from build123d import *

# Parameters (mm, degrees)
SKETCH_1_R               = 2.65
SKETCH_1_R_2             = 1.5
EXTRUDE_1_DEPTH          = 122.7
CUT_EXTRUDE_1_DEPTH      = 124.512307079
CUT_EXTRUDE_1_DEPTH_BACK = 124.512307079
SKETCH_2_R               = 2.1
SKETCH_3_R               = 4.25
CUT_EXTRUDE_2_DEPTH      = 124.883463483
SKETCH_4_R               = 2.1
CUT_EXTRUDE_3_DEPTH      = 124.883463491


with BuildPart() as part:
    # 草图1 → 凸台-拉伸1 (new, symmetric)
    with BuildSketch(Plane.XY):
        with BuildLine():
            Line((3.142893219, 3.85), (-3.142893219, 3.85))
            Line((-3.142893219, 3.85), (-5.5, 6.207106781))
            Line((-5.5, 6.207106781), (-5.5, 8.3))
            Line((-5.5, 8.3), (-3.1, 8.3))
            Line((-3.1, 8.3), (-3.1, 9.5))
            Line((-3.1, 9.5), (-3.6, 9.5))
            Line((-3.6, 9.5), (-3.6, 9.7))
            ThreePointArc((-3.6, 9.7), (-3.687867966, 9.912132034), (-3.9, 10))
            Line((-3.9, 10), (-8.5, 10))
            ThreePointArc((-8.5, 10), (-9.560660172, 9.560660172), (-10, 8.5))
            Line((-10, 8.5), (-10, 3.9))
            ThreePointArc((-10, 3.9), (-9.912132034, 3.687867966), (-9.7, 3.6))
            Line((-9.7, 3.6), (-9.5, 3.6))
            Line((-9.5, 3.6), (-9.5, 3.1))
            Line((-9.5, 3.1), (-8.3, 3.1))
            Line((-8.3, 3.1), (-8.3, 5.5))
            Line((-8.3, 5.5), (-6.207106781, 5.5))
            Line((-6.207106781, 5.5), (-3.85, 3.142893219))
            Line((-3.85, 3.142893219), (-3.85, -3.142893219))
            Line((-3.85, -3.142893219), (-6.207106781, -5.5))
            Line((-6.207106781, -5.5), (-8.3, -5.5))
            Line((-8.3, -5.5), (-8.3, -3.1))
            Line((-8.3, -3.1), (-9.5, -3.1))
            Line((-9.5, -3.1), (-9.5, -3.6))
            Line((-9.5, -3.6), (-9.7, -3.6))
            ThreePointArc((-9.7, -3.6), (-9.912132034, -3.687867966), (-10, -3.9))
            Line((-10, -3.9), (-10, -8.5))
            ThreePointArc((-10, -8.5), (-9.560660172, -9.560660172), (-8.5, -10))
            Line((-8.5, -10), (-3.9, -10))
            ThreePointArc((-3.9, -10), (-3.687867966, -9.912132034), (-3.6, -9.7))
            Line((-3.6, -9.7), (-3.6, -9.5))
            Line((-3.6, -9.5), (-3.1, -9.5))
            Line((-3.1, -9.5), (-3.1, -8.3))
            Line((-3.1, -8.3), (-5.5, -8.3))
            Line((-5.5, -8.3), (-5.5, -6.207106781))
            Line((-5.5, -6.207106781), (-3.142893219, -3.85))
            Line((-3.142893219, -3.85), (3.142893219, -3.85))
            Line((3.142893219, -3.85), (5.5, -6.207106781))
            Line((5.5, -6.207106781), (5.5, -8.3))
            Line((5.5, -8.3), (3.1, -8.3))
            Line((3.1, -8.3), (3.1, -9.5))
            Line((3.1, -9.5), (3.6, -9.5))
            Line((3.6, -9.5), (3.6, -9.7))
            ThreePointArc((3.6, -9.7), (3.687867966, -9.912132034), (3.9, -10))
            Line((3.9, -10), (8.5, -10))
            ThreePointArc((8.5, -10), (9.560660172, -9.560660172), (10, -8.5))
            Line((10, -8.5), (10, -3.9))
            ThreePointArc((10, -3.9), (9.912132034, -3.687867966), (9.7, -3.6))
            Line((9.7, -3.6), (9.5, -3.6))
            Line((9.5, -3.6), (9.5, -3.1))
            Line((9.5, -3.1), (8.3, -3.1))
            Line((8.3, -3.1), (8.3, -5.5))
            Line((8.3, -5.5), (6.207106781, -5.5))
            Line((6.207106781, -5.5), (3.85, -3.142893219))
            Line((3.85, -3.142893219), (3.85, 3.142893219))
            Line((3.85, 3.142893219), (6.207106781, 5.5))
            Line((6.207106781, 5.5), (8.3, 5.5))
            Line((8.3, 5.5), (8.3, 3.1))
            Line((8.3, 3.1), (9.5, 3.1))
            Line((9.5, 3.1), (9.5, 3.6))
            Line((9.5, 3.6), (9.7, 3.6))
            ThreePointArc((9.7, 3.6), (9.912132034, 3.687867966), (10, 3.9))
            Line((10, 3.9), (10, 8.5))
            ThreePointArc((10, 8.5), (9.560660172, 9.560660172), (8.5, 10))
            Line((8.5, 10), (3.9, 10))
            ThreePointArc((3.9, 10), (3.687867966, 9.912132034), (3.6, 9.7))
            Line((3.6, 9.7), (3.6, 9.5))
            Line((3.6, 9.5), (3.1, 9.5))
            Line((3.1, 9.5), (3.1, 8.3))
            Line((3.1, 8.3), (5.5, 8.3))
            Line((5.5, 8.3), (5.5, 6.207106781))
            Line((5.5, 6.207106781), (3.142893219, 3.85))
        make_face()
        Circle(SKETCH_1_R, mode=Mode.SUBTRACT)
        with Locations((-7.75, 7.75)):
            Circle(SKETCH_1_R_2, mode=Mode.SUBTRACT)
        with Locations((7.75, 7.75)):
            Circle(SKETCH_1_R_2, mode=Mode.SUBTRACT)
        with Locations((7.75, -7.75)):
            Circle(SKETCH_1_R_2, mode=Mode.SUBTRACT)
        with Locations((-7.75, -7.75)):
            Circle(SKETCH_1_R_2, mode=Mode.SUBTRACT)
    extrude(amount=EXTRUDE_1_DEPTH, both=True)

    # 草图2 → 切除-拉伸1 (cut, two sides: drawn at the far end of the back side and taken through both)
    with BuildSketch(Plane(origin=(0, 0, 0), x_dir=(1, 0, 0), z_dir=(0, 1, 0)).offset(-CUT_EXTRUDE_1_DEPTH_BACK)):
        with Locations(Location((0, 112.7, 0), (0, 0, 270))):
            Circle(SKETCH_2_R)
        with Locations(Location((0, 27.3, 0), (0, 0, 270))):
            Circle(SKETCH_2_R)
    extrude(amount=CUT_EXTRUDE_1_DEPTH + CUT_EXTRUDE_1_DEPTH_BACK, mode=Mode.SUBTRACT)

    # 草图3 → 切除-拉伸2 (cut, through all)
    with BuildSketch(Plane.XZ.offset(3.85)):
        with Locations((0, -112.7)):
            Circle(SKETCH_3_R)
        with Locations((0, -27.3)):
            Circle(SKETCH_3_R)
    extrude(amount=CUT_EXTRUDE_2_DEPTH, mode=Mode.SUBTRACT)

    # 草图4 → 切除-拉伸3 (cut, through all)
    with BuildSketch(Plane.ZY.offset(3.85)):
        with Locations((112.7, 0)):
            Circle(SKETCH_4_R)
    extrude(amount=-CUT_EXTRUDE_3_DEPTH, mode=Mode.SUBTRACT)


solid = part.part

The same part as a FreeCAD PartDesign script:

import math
import FreeCAD as App
import Part
import Sketcher

V = App.Vector

doc = App.newDocument("Part")
params = doc.addObject("Spreadsheet::Sheet", "Params")
for row, (alias, value) in enumerate([
    ("sketch1_diameter", "3 mm"),
    ("sketch1_diameter2", "5.3 mm"),
    ("sketch1_radius", "0.3 mm"),
    ("sketch1_width", "2.4 mm"),
    ("sketch1_width2", "0.5 mm"),
    ("pad1_length", "245.4 mm"),
    ("sketch2_diameter", "4.2 mm"),
    ("sketch3_diameter", "8.5 mm"),
    ("sketch4_diameter", "4.2 mm"),
], start=1):
    params.set(f"A{row}", alias)
    params.set(f"B{row}", "=" + value)
    params.setAlias(f"B{row}", alias)

body = doc.addObject("PartDesign::Body", "Body")

# Sketch on XY plane
sketch1 = doc.addObject("Sketcher::SketchObject", "Sketch")
body.addObject(sketch1)
sketch1.AttachmentSupport = (doc.XY_Plane, [""])
sketch1.MapMode = "FlatFace"
sketch1.addGeometry(Part.LineSegment(V(3.142893, 3.85, 0), V(-3.142893, 3.85, 0)), False)
sketch1.addGeometry(Part.LineSegment(V(-3.142893, 3.85, 0), V(-5.5, 6.207107, 0)), False)
sketch1.addGeometry(Part.LineSegment(V(-5.5, 6.207107, 0), V(-5.5, 8.3, 0)), False)
sketch1.addGeometry(Part.LineSegment(V(-5.5, 8.3, 0), V(-3.1, 8.3, 0)), False)
sketch1.addGeometry(Part.LineSegment(V(-3.1, 8.3, 0), V(-3.1, 9.5, 0)), False)
sketch1.addGeometry(Part.LineSegment(V(-3.1, 9.5, 0), V(-3.6, 9.5, 0)), False)
sketch1.addGeometry(Part.LineSegment(V(-3.6, 9.5, 0), V(-3.6, 9.7, 0)), False)
sketch1.addGeometry(Part.ArcOfCircle(Part.Circle(V(-3.9, 9.7, 0), V(0, 0, 1), 0.3), math.radians(0), math.radians(90)), False)
sketch1.addGeometry(Part.LineSegment(V(-3.9, 10, 0), V(-8.5, 10, 0)), False)
sketch1.addGeometry(Part.ArcOfCircle(Part.Circle(V(-8.5, 8.5, 0), V(0, 0, 1), 1.5), math.radians(90), math.radians(180)), False)
sketch1.addGeometry(Part.LineSegment(V(-10, 8.5, 0), V(-10, 3.9, 0)), False)
sketch1.addGeometry(Part.ArcOfCircle(Part.Circle(V(-9.7, 3.9, 0), V(0, 0, 1), 0.3), math.radians(-180), math.radians(-90)), False)
sketch1.addGeometry(Part.LineSegment(V(-9.7, 3.6, 0), V(-9.5, 3.6, 0)), False)
sketch1.addGeometry(Part.LineSegment(V(-9.5, 3.6, 0), V(-9.5, 3.1, 0)), False)
sketch1.addGeometry(Part.LineSegment(V(-9.5, 3.1, 0), V(-8.3, 3.1, 0)), False)
sketch1.addGeometry(Part.LineSegment(V(-8.3, 3.1, 0), V(-8.3, 5.5, 0)), False)
sketch1.addGeometry(Part.LineSegment(V(-8.3, 5.5, 0), V(-6.207107, 5.5, 0)), False)
sketch1.addGeometry(Part.LineSegment(V(-6.207107, 5.5, 0), V(-3.85, 3.142893, 0)), False)
sketch1.addGeometry(Part.LineSegment(V(-3.85, 3.142893, 0), V(-3.85, -3.142893, 0)), False)
sketch1.addGeometry(Part.LineSegment(V(-3.85, -3.142893, 0), V(-6.207107, -5.5, 0)), False)
sketch1.addGeometry(Part.LineSegment(V(-6.207107, -5.5, 0), V(-8.3, -5.5, 0)), False)
sketch1.addGeometry(Part.LineSegment(V(-8.3, -5.5, 0), V(-8.3, -3.1, 0)), False)
sketch1.addGeometry(Part.LineSegment(V(-8.3, -3.1, 0), V(-9.5, -3.1, 0)), False)
sketch1.addGeometry(Part.LineSegment(V(-9.5, -3.1, 0), V(-9.5, -3.6, 0)), False)
sketch1.addGeometry(Part.LineSegment(V(-9.5, -3.6, 0), V(-9.7, -3.6, 0)), False)
sketch1.addGeometry(Part.ArcOfCircle(Part.Circle(V(-9.7, -3.9, 0), V(0, 0, 1), 0.3), math.radians(90), math.radians(180)), False)
sketch1.addGeometry(Part.LineSegment(V(-10, -3.9, 0), V(-10, -8.5, 0)), False)
sketch1.addGeometry(Part.ArcOfCircle(Part.Circle(V(-8.5, -8.5, 0), V(0, 0, 1), 1.5), math.radians(180), math.radians(270)), False)
sketch1.addGeometry(Part.LineSegment(V(-8.5, -10, 0), V(-3.9, -10, 0)), False)
sketch1.addGeometry(Part.ArcOfCircle(Part.Circle(V(-3.9, -9.7, 0), V(0, 0, 1), 0.3), math.radians(-90), math.radians(0)), False)
sketch1.addGeometry(Part.LineSegment(V(-3.6, -9.7, 0), V(-3.6, -9.5, 0)), False)
sketch1.addGeometry(Part.LineSegment(V(-3.6, -9.5, 0), V(-3.1, -9.5, 0)), False)
sketch1.addGeometry(Part.LineSegment(V(-3.1, -9.5, 0), V(-3.1, -8.3, 0)), False)
sketch1.addGeometry(Part.LineSegment(V(-3.1, -8.3, 0), V(-5.5, -8.3, 0)), False)
sketch1.addGeometry(Part.LineSegment(V(-5.5, -8.3, 0), V(-5.5, -6.207107, 0)), False)
sketch1.addGeometry(Part.LineSegment(V(-5.5, -6.207107, 0), V(-3.142893, -3.85, 0)), False)
sketch1.addGeometry(Part.LineSegment(V(-3.142893, -3.85, 0), V(3.142893, -3.85, 0)), False)
sketch1.addGeometry(Part.LineSegment(V(3.142893, -3.85, 0), V(5.5, -6.207107, 0)), False)
sketch1.addGeometry(Part.LineSegment(V(5.5, -6.207107, 0), V(5.5, -8.3, 0)), False)
sketch1.addGeometry(Part.LineSegment(V(5.5, -8.3, 0), V(3.1, -8.3, 0)), False)
sketch1.addGeometry(Part.LineSegment(V(3.1, -8.3, 0), V(3.1, -9.5, 0)), False)
sketch1.addGeometry(Part.LineSegment(V(3.1, -9.5, 0), V(3.6, -9.5, 0)), False)
sketch1.addGeometry(Part.LineSegment(V(3.6, -9.5, 0), V(3.6, -9.7, 0)), False)
sketch1.addGeometry(Part.ArcOfCircle(Part.Circle(V(3.9, -9.7, 0), V(0, 0, 1), 0.3), math.radians(-180), math.radians(-90)), False)
sketch1.addGeometry(Part.LineSegment(V(3.9, -10, 0), V(8.5, -10, 0)), False)
sketch1.addGeometry(Part.ArcOfCircle(Part.Circle(V(8.5, -8.5, 0), V(0, 0, 1), 1.5), math.radians(-90), math.radians(0)), False)
sketch1.addGeometry(Part.LineSegment(V(10, -8.5, 0), V(10, -3.9, 0)), False)
sketch1.addGeometry(Part.ArcOfCircle(Part.Circle(V(9.7, -3.9, 0), V(0, 0, 1), 0.3), math.radians(0), math.radians(90)), False)
sketch1.addGeometry(Part.LineSegment(V(9.7, -3.6, 0), V(9.5, -3.6, 0)), False)
sketch1.addGeometry(Part.LineSegment(V(9.5, -3.6, 0), V(9.5, -3.1, 0)), False)
sketch1.addGeometry(Part.LineSegment(V(9.5, -3.1, 0), V(8.3, -3.1, 0)), False)
sketch1.addGeometry(Part.LineSegment(V(8.3, -3.1, 0), V(8.3, -5.5, 0)), False)
sketch1.addGeometry(Part.LineSegment(V(8.3, -5.5, 0), V(6.207107, -5.5, 0)), False)
sketch1.addGeometry(Part.LineSegment(V(6.207107, -5.5, 0), V(3.85, -3.142893, 0)), False)
sketch1.addGeometry(Part.LineSegment(V(3.85, -3.142893, 0), V(3.85, 3.142893, 0)), False)
sketch1.addGeometry(Part.LineSegment(V(3.85, 3.142893, 0), V(6.207107, 5.5, 0)), False)
sketch1.addGeometry(Part.LineSegment(V(6.207107, 5.5, 0), V(8.3, 5.5, 0)), False)
sketch1.addGeometry(Part.LineSegment(V(8.3, 5.5, 0), V(8.3, 3.1, 0)), False)
sketch1.addGeometry(Part.LineSegment(V(8.3, 3.1, 0), V(9.5, 3.1, 0)), False)
sketch1.addGeometry(Part.LineSegment(V(9.5, 3.1, 0), V(9.5, 3.6, 0)), False)
sketch1.addGeometry(Part.LineSegment(V(9.5, 3.6, 0), V(9.7, 3.6, 0)), False)
sketch1.addGeometry(Part.ArcOfCircle(Part.Circle(V(9.7, 3.9, 0), V(0, 0, 1), 0.3), math.radians(-90), math.radians(0)), False)
sketch1.addGeometry(Part.LineSegment(V(10, 3.9, 0), V(10, 8.5, 0)), False)
sketch1.addGeometry(Part.ArcOfCircle(Part.Circle(V(8.5, 8.5, 0), V(0, 0, 1), 1.5), math.radians(0), math.radians(90)), False)
sketch1.addGeometry(Part.LineSegment(V(8.5, 10, 0), V(3.9, 10, 0)), False)
sketch1.addGeometry(Part.ArcOfCircle(Part.Circle(V(3.9, 9.7, 0), V(0, 0, 1), 0.3), math.radians(90), math.radians(180)), False)
sketch1.addGeometry(Part.LineSegment(V(3.6, 9.7, 0), V(3.6, 9.5, 0)), False)
sketch1.addGeometry(Part.LineSegment(V(3.6, 9.5, 0), V(3.1, 9.5, 0)), False)
sketch1.addGeometry(Part.LineSegment(V(3.1, 9.5, 0), V(3.1, 8.3, 0)), False)
sketch1.addGeometry(Part.LineSegment(V(3.1, 8.3, 0), V(5.5, 8.3, 0)), False)
sketch1.addGeometry(Part.LineSegment(V(5.5, 8.3, 0), V(5.5, 6.207107, 0)), False)
sketch1.addGeometry(Part.LineSegment(V(5.5, 6.207107, 0), V(3.142893, 3.85, 0)), False)
sketch1.addGeometry(Part.Circle(V(-7.75, -7.75, 0), V(0, 0, 1), 1.5), False)
sketch1.addGeometry(Part.Circle(V(7.75, -7.75, 0), V(0, 0, 1), 1.5), False)
sketch1.addGeometry(Part.Circle(V(-7.75, 7.75, 0), V(0, 0, 1), 1.5), False)
sketch1.addGeometry(Part.Circle(V(0, 0, 0), V(0, 0, 1), 2.65), False)
sketch1.addGeometry(Part.Circle(V(7.75, 7.75, 0), V(0, 0, 1), 1.5), False)
sketch1.addConstraint(Sketcher.Constraint("Coincident", 0, 2, 1, 1))
sketch1.addConstraint(Sketcher.Constraint("Coincident", 1, 2, 2, 1))
sketch1.addConstraint(Sketcher.Constraint("Coincident", 2, 2, 3, 1))
sketch1.addConstraint(Sketcher.Constraint("Coincident", 3, 2, 4, 1))
sketch1.addConstraint(Sketcher.Constraint("Coincident", 4, 2, 5, 1))
sketch1.addConstraint(Sketcher.Constraint("Coincident", 5, 2, 6, 1))
sketch1.addConstraint(Sketcher.Constraint("Tangent", 6, 2, 7, 1))
sketch1.addConstraint(Sketcher.Constraint("Tangent", 7, 2, 8, 1))
sketch1.addConstraint(Sketcher.Constraint("Tangent", 8, 2, 9, 1))
sketch1.addConstraint(Sketcher.Constraint("Tangent", 9, 2, 10, 1))
sketch1.addConstraint(Sketcher.Constraint("Tangent", 10, 2, 11, 1))
sketch1.addConstraint(Sketcher.Constraint("Tangent", 11, 2, 12, 1))
sketch1.addConstraint(Sketcher.Constraint("Coincident", 12, 2, 13, 1))
sketch1.addConstraint(Sketcher.Constraint("Coincident", 13, 2, 14, 1))
sketch1.addConstraint(Sketcher.Constraint("Coincident", 14, 2, 15, 1))
sketch1.addConstraint(Sketcher.Constraint("Coincident", 15, 2, 16, 1))
sketch1.addConstraint(Sketcher.Constraint("Coincident", 16, 2, 17, 1))
sketch1.addConstraint(Sketcher.Constraint("Coincident", 17, 2, 18, 1))
sketch1.addConstraint(Sketcher.Constraint("Coincident", 18, 2, 19, 1))
sketch1.addConstraint(Sketcher.Constraint("Coincident", 19, 2, 20, 1))
sketch1.addConstraint(Sketcher.Constraint("Coincident", 20, 2, 21, 1))
sketch1.addConstraint(Sketcher.Constraint("Coincident", 21, 2, 22, 1))
sketch1.addConstraint(Sketcher.Constraint("Coincident", 22, 2, 23, 1))
sketch1.addConstraint(Sketcher.Constraint("Coincident", 23, 2, 24, 1))
sketch1.addConstraint(Sketcher.Constraint("Tangent", 24, 2, 25, 1))
sketch1.addConstraint(Sketcher.Constraint("Tangent", 25, 2, 26, 1))
sketch1.addConstraint(Sketcher.Constraint("Tangent", 26, 2, 27, 1))
sketch1.addConstraint(Sketcher.Constraint("Tangent", 27, 2, 28, 1))
sketch1.addConstraint(Sketcher.Constraint("Tangent", 28, 2, 29, 1))
sketch1.addConstraint(Sketcher.Constraint("Tangent", 29, 2, 30, 1))
sketch1.addConstraint(Sketcher.Constraint("Coincident", 30, 2, 31, 1))
sketch1.addConstraint(Sketcher.Constraint("Coincident", 31, 2, 32, 1))
sketch1.addConstraint(Sketcher.Constraint("Coincident", 32, 2, 33, 1))
sketch1.addConstraint(Sketcher.Constraint("Coincident", 33, 2, 34, 1))
sketch1.addConstraint(Sketcher.Constraint("Coincident", 34, 2, 35, 1))
sketch1.addConstraint(Sketcher.Constraint("Coincident", 35, 2, 36, 1))
sketch1.addConstraint(Sketcher.Constraint("Coincident", 36, 2, 37, 1))
sketch1.addConstraint(Sketcher.Constraint("Coincident", 37, 2, 38, 1))
sketch1.addConstraint(Sketcher.Constraint("Coincident", 38, 2, 39, 1))
sketch1.addConstraint(Sketcher.Constraint("Coincident", 39, 2, 40, 1))
sketch1.addConstraint(Sketcher.Constraint("Coincident", 40, 2, 41, 1))
sketch1.addConstraint(Sketcher.Constraint("Coincident", 41, 2, 42, 1))
sketch1.addConstraint(Sketcher.Constraint("Tangent", 42, 2, 43, 1))
sketch1.addConstraint(Sketcher.Constraint("Tangent", 43, 2, 44, 1))
sketch1.addConstraint(Sketcher.Constraint("Tangent", 44, 2, 45, 1))
sketch1.addConstraint(Sketcher.Constraint("Tangent", 45, 2, 46, 1))
sketch1.addConstraint(Sketcher.Constraint("Tangent", 46, 2, 47, 1))
sketch1.addConstraint(Sketcher.Constraint("Tangent", 47, 2, 48, 1))
sketch1.addConstraint(Sketcher.Constraint("Coincident", 48, 2, 49, 1))
sketch1.addConstraint(Sketcher.Constraint("Coincident", 49, 2, 50, 1))
sketch1.addConstraint(Sketcher.Constraint("Coincident", 50, 2, 51, 1))
sketch1.addConstraint(Sketcher.Constraint("Coincident", 51, 2, 52, 1))
sketch1.addConstraint(Sketcher.Constraint("Coincident", 52, 2, 53, 1))
sketch1.addConstraint(Sketcher.Constraint("Coincident", 53, 2, 54, 1))
sketch1.addConstraint(Sketcher.Constraint("Coincident", 54, 2, 55, 1))
sketch1.addConstraint(Sketcher.Constraint("Coincident", 55, 2, 56, 1))
sketch1.addConstraint(Sketcher.Constraint("Coincident", 56, 2, 57, 1))
sketch1.addConstraint(Sketcher.Constraint("Coincident", 57, 2, 58, 1))
sketch1.addConstraint(Sketcher.Constraint("Coincident", 58, 2, 59, 1))
sketch1.addConstraint(Sketcher.Constraint("Coincident", 59, 2, 60, 1))
sketch1.addConstraint(Sketcher.Constraint("Tangent", 60, 2, 61, 1))
sketch1.addConstraint(Sketcher.Constraint("Tangent", 61, 2, 62, 1))
sketch1.addConstraint(Sketcher.Constraint("Tangent", 62, 2, 63, 1))
sketch1.addConstraint(Sketcher.Constraint("Tangent", 63, 2, 64, 1))
sketch1.addConstraint(Sketcher.Constraint("Tangent", 64, 2, 65, 1))
sketch1.addConstraint(Sketcher.Constraint("Tangent", 65, 2, 66, 1))
sketch1.addConstraint(Sketcher.Constraint("Coincident", 66, 2, 67, 1))
sketch1.addConstraint(Sketcher.Constraint("Coincident", 67, 2, 68, 1))
sketch1.addConstraint(Sketcher.Constraint("Coincident", 68, 2, 69, 1))
sketch1.addConstraint(Sketcher.Constraint("Coincident", 69, 2, 70, 1))
sketch1.addConstraint(Sketcher.Constraint("Coincident", 70, 2, 71, 1))
sketch1.addConstraint(Sketcher.Constraint("Coincident", 71, 2, 0, 1))
sketch1.addConstraint(Sketcher.Constraint("Horizontal", 0))
sketch1.addConstraint(Sketcher.Constraint("Vertical", 2))
sketch1.addConstraint(Sketcher.Constraint("Horizontal", 3))
sketch1.addConstraint(Sketcher.Constraint("Vertical", 4))
sketch1.addConstraint(Sketcher.Constraint("Horizontal", 5))
sketch1.addConstraint(Sketcher.Constraint("Vertical", 6))
sketch1.addConstraint(Sketcher.Constraint("Horizontal", 8))
sketch1.addConstraint(Sketcher.Constraint("Vertical", 10))
sketch1.addConstraint(Sketcher.Constraint("Horizontal", 12))
sketch1.addConstraint(Sketcher.Constraint("Vertical", 13))
sketch1.addConstraint(Sketcher.Constraint("Horizontal", 14))
sketch1.addConstraint(Sketcher.Constraint("Vertical", 15))
sketch1.addConstraint(Sketcher.Constraint("Horizontal", 16))
sketch1.addConstraint(Sketcher.Constraint("Vertical", 18))
sketch1.addConstraint(Sketcher.Constraint("Horizontal", 20))
sketch1.addConstraint(Sketcher.Constraint("Vertical", 21))
sketch1.addConstraint(Sketcher.Constraint("Horizontal", 22))
sketch1.addConstraint(Sketcher.Constraint("Vertical", 23))
sketch1.addConstraint(Sketcher.Constraint("Horizontal", 24))
sketch1.addConstraint(Sketcher.Constraint("Vertical", 26))
sketch1.addConstraint(Sketcher.Constraint("Horizontal", 28))
sketch1.addConstraint(Sketcher.Constraint("Vertical", 30))
sketch1.addConstraint(Sketcher.Constraint("Horizontal", 31))
sketch1.addConstraint(Sketcher.Constraint("Vertical", 32))
sketch1.addConstraint(Sketcher.Constraint("Horizontal", 33))
sketch1.addConstraint(Sketcher.Constraint("Vertical", 34))
sketch1.addConstraint(Sketcher.Constraint("Horizontal", 36))
sketch1.addConstraint(Sketcher.Constraint("Vertical", 38))
sketch1.addConstraint(Sketcher.Constraint("Horizontal", 39))
sketch1.addConstraint(Sketcher.Constraint("Vertical", 40))
sketch1.addConstraint(Sketcher.Constraint("Horizontal", 41))
sketch1.addConstraint(Sketcher.Constraint("Vertical", 42))
sketch1.addConstraint(Sketcher.Constraint("Horizontal", 44))
sketch1.addConstraint(Sketcher.Constraint("Vertical", 46))
sketch1.addConstraint(Sketcher.Constraint("Horizontal", 48))
sketch1.addConstraint(Sketcher.Constraint("Vertical", 49))
sketch1.addConstraint(Sketcher.Constraint("Horizontal", 50))
sketch1.addConstraint(Sketcher.Constraint("Vertical", 51))
sketch1.addConstraint(Sketcher.Constraint("Horizontal", 52))
sketch1.addConstraint(Sketcher.Constraint("Vertical", 54))
sketch1.addConstraint(Sketcher.Constraint("Horizontal", 56))
sketch1.addConstraint(Sketcher.Constraint("Vertical", 57))
sketch1.addConstraint(Sketcher.Constraint("Horizontal", 58))
sketch1.addConstraint(Sketcher.Constraint("Vertical", 59))
sketch1.addConstraint(Sketcher.Constraint("Horizontal", 60))
sketch1.addConstraint(Sketcher.Constraint("Vertical", 62))
sketch1.addConstraint(Sketcher.Constraint("Horizontal", 64))
sketch1.addConstraint(Sketcher.Constraint("Vertical", 66))
sketch1.addConstraint(Sketcher.Constraint("Horizontal", 67))
sketch1.addConstraint(Sketcher.Constraint("Vertical", 68))
sketch1.addConstraint(Sketcher.Constraint("Horizontal", 69))
sketch1.addConstraint(Sketcher.Constraint("Vertical", 70))
sketch1.addConstraint(Sketcher.Constraint("Coincident", 75, 3, -1, 1))
sketch1.addConstraint(Sketcher.Constraint("Equal", 7, 11))
sketch1.addConstraint(Sketcher.Constraint("Equal", 11, 25))
sketch1.addConstraint(Sketcher.Constraint("Equal", 9, 27))
sketch1.addConstraint(Sketcher.Constraint("Equal", 25, 29))
sketch1.addConstraint(Sketcher.Constraint("Equal", 29, 43))
sketch1.addConstraint(Sketcher.Constraint("Equal", 27, 45))
sketch1.addConstraint(Sketcher.Constraint("Equal", 43, 47))
sketch1.addConstraint(Sketcher.Constraint("Equal", 47, 61))
sketch1.addConstraint(Sketcher.Constraint("Equal", 45, 63))
sketch1.addConstraint(Sketcher.Constraint("Equal", 61, 65))
sketch1.addConstraint(Sketcher.Constraint("Equal", 63, 72))
sketch1.addConstraint(Sketcher.Constraint("Equal", 72, 73))
sketch1.addConstraint(Sketcher.Constraint("Equal", 73, 74))
sketch1.addConstraint(Sketcher.Constraint("Equal", 74, 76))
sketch1.addConstraint(Sketcher.Constraint("Symmetric", 7, 3, 43, 3, -1, 1))
sketch1.addConstraint(Sketcher.Constraint("Symmetric", 11, 3, 47, 3, -1, 1))
sketch1.addConstraint(Sketcher.Constraint("Symmetric", 25, 3, 61, 3, -1, 1))
sketch1.addConstraint(Sketcher.Constraint("Symmetric", 29, 3, 65, 3, -1, 1))
sketch1.addConstraint(Sketcher.Constraint("Symmetric", 73, 3, 74, 3, -1, 1))
sketch1.addConstraint(Sketcher.Constraint("Symmetric", 72, 3, 76, 3, -1, 1))
sketch1.addConstraint(Sketcher.Constraint("Symmetric", 0, 2, 36, 2, -1, 1))
sketch1.addConstraint(Sketcher.Constraint("Symmetric", 1, 2, 37, 2, -1, 1))
sketch1.addConstraint(Sketcher.Constraint("Symmetric", 3, 2, 39, 2, -1, 1))
sketch1.addConstraint(Sketcher.Constraint("Symmetric", 13, 2, 49, 2, -1, 1))
sketch1.addConstraint(Sketcher.Constraint("Symmetric", 15, 2, 51, 2, -1, 1))
sketch1.addConstraint(Sketcher.Constraint("Symmetric", 17, 2, 53, 2, -1, 1))
sketch1.addConstraint(Sketcher.Constraint("Symmetric", 19, 2, 55, 2, -1, 1))
sketch1.addConstraint(Sketcher.Constraint("Symmetric", 21, 2, 57, 2, -1, 1))
sketch1.addConstraint(Sketcher.Constraint("Symmetric", 31, 2, 67, 2, -1, 1))
sketch1.addConstraint(Sketcher.Constraint("Symmetric", 33, 2, 69, 2, -1, 1))
sketch1.addConstraint(Sketcher.Constraint("Symmetric", 29, 3, 43, 3, -2))
sketch1.addConstraint(Sketcher.Constraint("Symmetric", 25, 3, 47, 3, -2))
sketch1.addConstraint(Sketcher.Constraint("Symmetric", 72, 3, 73, 3, -2))
sketch1.addConstraint(Sketcher.Constraint("Symmetric", 34, 2, 37, 2, -2))
sketch1.addConstraint(Sketcher.Constraint("Symmetric", 32, 2, 39, 2, -2))
sketch1.addConstraint(Sketcher.Constraint("Symmetric", 22, 2, 49, 2, -2))
sketch1.addConstraint(Sketcher.Constraint("Symmetric", 20, 2, 51, 2, -2))
sketch1.addConstraint(Sketcher.Constraint("Parallel", 1, 17))
sketch1.addConstraint(Sketcher.Constraint("Perpendicular", 17, 19))
sketch1.addConstraint(Sketcher.Constraint("Parallel", 19, 35))
sketch1.addConstraint(Sketcher.Constraint("Parallel", 37, 53))
sketch1.addConstraint(Sketcher.Constraint("Perpendicular", 53, 55))
sketch1.addConstraint(Sketcher.Constraint("Parallel", 55, 71))
sketch1.addConstraint(Sketcher.Constraint("Horizontal", 31, 2, 40, 2))
sketch1.addConstraint(Sketcher.Constraint("Horizontal", 18, 2, 53, 2))
sketch1.addConstraint(Sketcher.Constraint("Horizontal", 5, 2, 66, 2))
sketch1.addConstraint(Sketcher.Constraint("Horizontal", 1, 2, 70, 2))
sketch1.addConstraint(Sketcher.Constraint("Vertical", 16, 2, 19, 2))
sketch1.addConstraint(Sketcher.Constraint("Vertical", 49, 2, 58, 2))
sketch1.addConstraint(Sketcher.Constraint("Equal", 56, 2))
sketch1.addConstraint(Sketcher.Constraint("Equal", 58, 4))
sketch1.addConstraint(Sketcher.Constraint("Equal", 60, 6))
sketch1.addConstraint(Sketcher.Constraint("Equal", 64, 10))
sketch1.addConstraint(Sketcher.Constraint("Equal", 67, 13))
sketch1.addConstraint(Sketcher.Constraint("Equal", 69, 15))
sketch1.addConstraint(Sketcher.Constraint("Equal", 36, 18))
sketch1.addConstraint(Sketcher.Constraint("Equal", 1, 17))
sketch1.addConstraint(Sketcher.Constraint("Diameter", 72, 3.0))
sketch1.addConstraint(Sketcher.Constraint("Diameter", 75, 5.3))
sketch1.addConstraint(Sketcher.Constraint("Radius", 7, 0.3))
sketch1.addConstraint(Sketcher.Constraint("DistanceX", 3, 1, 3, 2, 2.4))
sketch1.addConstraint(Sketcher.Constraint("DistanceX", 5, 2, 5, 1, 0.5))
sketch1.addConstraint(Sketcher.Constraint("DistanceX", 8, 2, 8, 1, 4.6))
sketch1.addConstraint(Sketcher.Constraint("DistanceX", 12, 1, 12, 2, 0.2))
sketch1.addConstraint(Sketcher.Constraint("DistanceX", 14, 1, 14, 2, 1.2))
sketch1.addConstraint(Sketcher.Constraint("DistanceY", -1, 1, 7, 2, 10.0))
sketch1.addConstraint(Sketcher.Constraint("DistanceX", 72, 3, -1, 1, 7.75))
sketch1.addConstraint(Sketcher.Constraint("DistanceY", 72, 3, -1, 1, 7.75))
sketch1.addConstraint(Sketcher.Constraint("DistanceY", -1, 1, 0, 2, 3.85))
sketch1.addConstraint(Sketcher.Constraint("DistanceX", 0, 2, 0, 1, 6.285786))
sketch1.setExpression("Constraints[182]", "Params.sketch1_diameter")
sketch1.setExpression("Constraints[183]", "Params.sketch1_diameter2")
sketch1.setExpression("Constraints[184]", "Params.sketch1_radius")
sketch1.setExpression("Constraints[185]", "Params.sketch1_width")
sketch1.setExpression("Constraints[186]", "Params.sketch1_width2")
pad1 = doc.addObject("PartDesign::Pad", "Pad")
body.addObject(pad1)
pad1.Profile = sketch1
pad1.setExpression("Length", "Params.pad1_length")
pad1.Midplane = True

# Sketch on XZ plane
sketch2 = doc.addObject("Sketcher::SketchObject", "Sketch001")
body.addObject(sketch2)
sketch2.AttachmentSupport = (doc.XZ_Plane, [""])
sketch2.MapMode = "FlatFace"
sketch2.addGeometry(Part.Circle(V(0, -112.7, 0), V(0, 0, 1), 2.1), False)
sketch2.addGeometry(Part.Circle(V(0, -27.3, 0), V(0, 0, 1), 2.1), False)
sketch2.addConstraint(Sketcher.Constraint("Equal", 0, 1))
sketch2.addConstraint(Sketcher.Constraint("PointOnObject", 0, 3, -2))
sketch2.addConstraint(Sketcher.Constraint("PointOnObject", 1, 3, -2))
sketch2.addConstraint(Sketcher.Constraint("Diameter", 0, 4.2))
sketch2.addConstraint(Sketcher.Constraint("DistanceY", 0, 3, -1, 1, 112.7))
sketch2.addConstraint(Sketcher.Constraint("DistanceY", 1, 3, -1, 1, 27.3))
sketch2.setExpression("Constraints[3]", "Params.sketch2_diameter")
pocket1 = doc.addObject("PartDesign::Pocket", "Pocket")
body.addObject(pocket1)
pocket1.Profile = sketch2
pocket1.Type = "ThroughAll"
pocket1.Midplane = True

# Sketch on XZ plane
sketch3 = doc.addObject("Sketcher::SketchObject", "Sketch002")
body.addObject(sketch3)
sketch3.AttachmentSupport = (doc.XZ_Plane, [""])
sketch3.MapMode = "FlatFace"
sketch3.AttachmentOffset = App.Placement(V(0, 0, 3.85), App.Rotation())
sketch3.addGeometry(Part.Circle(V(0, -112.7, 0), V(0, 0, 1), 4.25), False)
sketch3.addGeometry(Part.Circle(V(0, -27.3, 0), V(0, 0, 1), 4.25), False)
sketch3.addConstraint(Sketcher.Constraint("Equal", 0, 1))
sketch3.addConstraint(Sketcher.Constraint("PointOnObject", 0, 3, -2))
sketch3.addConstraint(Sketcher.Constraint("PointOnObject", 1, 3, -2))
sketch3.addConstraint(Sketcher.Constraint("Diameter", 0, 8.5))
sketch3.addConstraint(Sketcher.Constraint("DistanceY", 0, 3, -1, 1, 112.7))
sketch3.addConstraint(Sketcher.Constraint("DistanceY", 1, 3, -1, 1, 27.3))
sketch3.setExpression("Constraints[3]", "Params.sketch3_diameter")
pocket2 = doc.addObject("PartDesign::Pocket", "Pocket001")
body.addObject(pocket2)
pocket2.Profile = sketch3
pocket2.Type = "ThroughAll"
pocket2.Reversed = True

# Sketch on YZ plane
sketch4 = doc.addObject("Sketcher::SketchObject", "Sketch003")
body.addObject(sketch4)
sketch4.AttachmentSupport = (doc.YZ_Plane, [""])
sketch4.MapMode = "FlatFace"
sketch4.AttachmentOffset = App.Placement(V(0, 0, -3.85), App.Rotation())
sketch4.addGeometry(Part.Circle(V(0, 112.7, 0), V(0, 0, 1), 2.1), False)
sketch4.addConstraint(Sketcher.Constraint("PointOnObject", 0, 3, -2))
sketch4.addConstraint(Sketcher.Constraint("Diameter", 0, 4.2))
sketch4.addConstraint(Sketcher.Constraint("DistanceY", -1, 1, 0, 3, 112.7))
sketch4.setExpression("Constraints[1]", "Params.sketch4_diameter")
pocket3 = doc.addObject("PartDesign::Pocket", "Pocket002")
body.addObject(pocket3)
pocket3.Profile = sketch4
pocket3.Type = "ThroughAll"
pocket3.Reversed = True

doc.recompute()
